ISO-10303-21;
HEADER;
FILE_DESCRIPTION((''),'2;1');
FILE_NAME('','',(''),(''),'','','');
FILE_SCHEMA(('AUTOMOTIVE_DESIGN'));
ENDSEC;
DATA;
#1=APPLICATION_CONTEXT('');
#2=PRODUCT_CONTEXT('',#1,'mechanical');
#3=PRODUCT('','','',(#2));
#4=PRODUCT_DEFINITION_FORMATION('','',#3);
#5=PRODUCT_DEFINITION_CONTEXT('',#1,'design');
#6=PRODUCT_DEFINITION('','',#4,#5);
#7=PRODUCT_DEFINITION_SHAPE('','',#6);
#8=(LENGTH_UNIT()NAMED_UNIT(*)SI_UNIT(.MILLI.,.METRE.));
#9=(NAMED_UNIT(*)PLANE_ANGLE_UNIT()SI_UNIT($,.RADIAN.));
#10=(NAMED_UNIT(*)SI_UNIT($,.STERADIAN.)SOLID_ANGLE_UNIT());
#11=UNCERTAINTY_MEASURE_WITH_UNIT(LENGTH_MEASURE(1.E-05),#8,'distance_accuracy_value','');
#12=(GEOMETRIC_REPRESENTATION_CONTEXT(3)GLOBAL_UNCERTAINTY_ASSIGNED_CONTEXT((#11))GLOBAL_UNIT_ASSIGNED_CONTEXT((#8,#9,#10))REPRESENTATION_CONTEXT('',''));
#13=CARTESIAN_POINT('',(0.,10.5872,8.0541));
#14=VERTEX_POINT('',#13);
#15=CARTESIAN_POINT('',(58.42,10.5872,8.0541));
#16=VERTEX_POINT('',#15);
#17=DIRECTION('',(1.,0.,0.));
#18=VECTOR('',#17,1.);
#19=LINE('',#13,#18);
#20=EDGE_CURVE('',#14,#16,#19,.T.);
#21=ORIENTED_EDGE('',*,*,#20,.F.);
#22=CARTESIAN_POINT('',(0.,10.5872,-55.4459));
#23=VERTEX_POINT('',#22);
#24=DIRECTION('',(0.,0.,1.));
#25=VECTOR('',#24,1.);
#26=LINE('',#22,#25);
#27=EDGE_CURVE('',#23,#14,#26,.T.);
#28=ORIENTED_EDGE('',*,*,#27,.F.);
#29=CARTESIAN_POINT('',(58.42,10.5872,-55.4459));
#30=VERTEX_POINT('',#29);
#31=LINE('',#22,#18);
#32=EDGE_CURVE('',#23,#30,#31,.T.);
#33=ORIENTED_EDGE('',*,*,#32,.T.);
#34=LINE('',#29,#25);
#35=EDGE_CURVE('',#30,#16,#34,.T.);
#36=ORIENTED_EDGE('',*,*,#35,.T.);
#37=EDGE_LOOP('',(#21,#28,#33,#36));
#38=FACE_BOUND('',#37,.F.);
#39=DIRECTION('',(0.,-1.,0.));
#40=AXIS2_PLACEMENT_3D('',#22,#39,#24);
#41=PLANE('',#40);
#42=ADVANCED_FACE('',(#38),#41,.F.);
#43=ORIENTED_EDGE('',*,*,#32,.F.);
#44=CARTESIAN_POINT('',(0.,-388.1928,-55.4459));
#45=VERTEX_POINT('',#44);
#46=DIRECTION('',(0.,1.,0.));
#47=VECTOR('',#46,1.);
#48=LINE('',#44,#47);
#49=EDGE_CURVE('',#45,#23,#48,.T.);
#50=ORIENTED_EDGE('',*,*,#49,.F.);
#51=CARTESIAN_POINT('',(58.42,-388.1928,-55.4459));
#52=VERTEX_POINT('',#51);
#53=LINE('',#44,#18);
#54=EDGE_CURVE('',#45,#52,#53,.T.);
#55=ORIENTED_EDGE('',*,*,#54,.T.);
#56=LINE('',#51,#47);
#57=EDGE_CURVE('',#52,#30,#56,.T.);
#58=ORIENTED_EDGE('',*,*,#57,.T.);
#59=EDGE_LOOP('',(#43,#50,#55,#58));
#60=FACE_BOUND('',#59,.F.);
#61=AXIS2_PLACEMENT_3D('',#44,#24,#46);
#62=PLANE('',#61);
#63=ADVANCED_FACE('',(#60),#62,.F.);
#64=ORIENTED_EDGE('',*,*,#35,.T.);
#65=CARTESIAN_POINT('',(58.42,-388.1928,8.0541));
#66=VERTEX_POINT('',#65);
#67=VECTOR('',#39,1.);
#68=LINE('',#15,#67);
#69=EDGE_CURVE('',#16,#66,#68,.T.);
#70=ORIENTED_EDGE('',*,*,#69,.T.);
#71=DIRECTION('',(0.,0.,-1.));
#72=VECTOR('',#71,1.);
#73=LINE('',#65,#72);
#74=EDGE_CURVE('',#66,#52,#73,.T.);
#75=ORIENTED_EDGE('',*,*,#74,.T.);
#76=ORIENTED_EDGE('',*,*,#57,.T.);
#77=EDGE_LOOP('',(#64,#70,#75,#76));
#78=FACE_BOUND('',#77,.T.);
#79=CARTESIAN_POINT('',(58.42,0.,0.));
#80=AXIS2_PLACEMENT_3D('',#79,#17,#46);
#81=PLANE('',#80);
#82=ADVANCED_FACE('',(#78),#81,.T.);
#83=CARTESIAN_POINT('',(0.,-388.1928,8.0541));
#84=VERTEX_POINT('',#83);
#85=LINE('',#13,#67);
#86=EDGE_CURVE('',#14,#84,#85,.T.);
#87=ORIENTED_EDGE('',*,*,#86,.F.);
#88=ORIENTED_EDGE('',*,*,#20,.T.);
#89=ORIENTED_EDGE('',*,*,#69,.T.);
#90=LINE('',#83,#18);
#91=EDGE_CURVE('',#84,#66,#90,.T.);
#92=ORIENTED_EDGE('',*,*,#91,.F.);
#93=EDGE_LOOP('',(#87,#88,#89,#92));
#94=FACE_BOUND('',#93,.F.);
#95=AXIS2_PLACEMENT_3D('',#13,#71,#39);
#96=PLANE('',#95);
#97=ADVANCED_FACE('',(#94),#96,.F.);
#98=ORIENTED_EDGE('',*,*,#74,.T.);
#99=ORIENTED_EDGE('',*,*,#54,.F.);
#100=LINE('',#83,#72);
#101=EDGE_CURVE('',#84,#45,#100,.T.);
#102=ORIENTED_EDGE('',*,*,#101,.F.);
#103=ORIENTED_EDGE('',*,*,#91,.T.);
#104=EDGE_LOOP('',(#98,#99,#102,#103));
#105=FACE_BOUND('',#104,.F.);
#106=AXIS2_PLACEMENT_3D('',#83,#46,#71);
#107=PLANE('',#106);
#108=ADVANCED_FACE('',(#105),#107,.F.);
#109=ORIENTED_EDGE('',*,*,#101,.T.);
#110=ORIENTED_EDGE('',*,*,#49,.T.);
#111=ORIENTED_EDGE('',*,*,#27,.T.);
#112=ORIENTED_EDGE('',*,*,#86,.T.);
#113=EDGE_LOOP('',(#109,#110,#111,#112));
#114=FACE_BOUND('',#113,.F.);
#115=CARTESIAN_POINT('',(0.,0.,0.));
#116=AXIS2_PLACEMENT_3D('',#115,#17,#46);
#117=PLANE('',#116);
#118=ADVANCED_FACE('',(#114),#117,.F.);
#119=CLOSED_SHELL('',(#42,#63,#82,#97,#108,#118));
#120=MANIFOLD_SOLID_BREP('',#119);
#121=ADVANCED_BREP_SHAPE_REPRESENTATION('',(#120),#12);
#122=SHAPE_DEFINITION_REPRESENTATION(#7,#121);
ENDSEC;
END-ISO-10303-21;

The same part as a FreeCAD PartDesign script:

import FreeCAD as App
import Part
import Sketcher
from FreeCAD import Vector
Q = App.Units.Quantity


def add_polygon(sketch, points):
    """Adds a closed chain of lines whose ends are joined by coincident constraints."""
    first, n = sketch.GeometryCount, len(points)
    for a, b in zip(points, points[1:] + points[:1]):
        sketch.addGeometry(Part.LineSegment(App.Vector(*a, 0), App.Vector(*b, 0)), False)
    for i in range(n):
        sketch.addConstraint(Sketcher.Constraint("Coincident", first + i, 2, first + (i + 1) % n, 1))

doc = App.newDocument("Part")
params = doc.addObject("Spreadsheet::Sheet", "Params")
for row, (alias, value) in enumerate([
    ("sketch1_width", "15.7 in"),
    ("sketch1_height", "2.5 in"),
    ("pad1_length", "2.3 in"),
], start=1):
    params.set(f"A{row}", alias)
    params.set(f"B{row}", "=" + value)
    params.setAlias(f"B{row}", alias)

body = doc.addObject("PartDesign::Body", "Body")

# Sketch on YZ plane
sketch1 = body.newObject("Sketcher::SketchObject", "Sketch")
sketch1.AttachmentSupport = (doc.getObject("YZ_Plane"), [""])
sketch1.MapMode = "FlatFace"
add_polygon(sketch1, [(11, -55), (11, 8), (-388, 8), (-388, -55)])  # lines 0-3
sketch1.addConstraint([
    Sketcher.Constraint("Vertical", 0),
    Sketcher.Constraint("Horizontal", 1),
    Sketcher.Constraint("Vertical", 2),
    Sketcher.Constraint("Horizontal", 3),
    Sketcher.Constraint("DistanceX", 1, 2, 1, 1, Q("15.7 in")),
    Sketcher.Constraint("DistanceY", 0, 1, 0, 2, Q("2.5 in")),
    Sketcher.Constraint("DistanceY", -1, 1, 0, 2, Q("0.3171 in")),
    Sketcher.Constraint("DistanceX", -1, 1, 0, 2, 10.5872),
])
sketch1.setExpression("Constraints[8]", "Params.sketch1_width")
sketch1.setExpression("Constraints[9]", "Params.sketch1_height")
pad1 = body.newObject("PartDesign::Pad", "Pad")
pad1.Profile = sketch1
pad1.setExpression("Length", "Params.pad1_length")

doc.recompute()
